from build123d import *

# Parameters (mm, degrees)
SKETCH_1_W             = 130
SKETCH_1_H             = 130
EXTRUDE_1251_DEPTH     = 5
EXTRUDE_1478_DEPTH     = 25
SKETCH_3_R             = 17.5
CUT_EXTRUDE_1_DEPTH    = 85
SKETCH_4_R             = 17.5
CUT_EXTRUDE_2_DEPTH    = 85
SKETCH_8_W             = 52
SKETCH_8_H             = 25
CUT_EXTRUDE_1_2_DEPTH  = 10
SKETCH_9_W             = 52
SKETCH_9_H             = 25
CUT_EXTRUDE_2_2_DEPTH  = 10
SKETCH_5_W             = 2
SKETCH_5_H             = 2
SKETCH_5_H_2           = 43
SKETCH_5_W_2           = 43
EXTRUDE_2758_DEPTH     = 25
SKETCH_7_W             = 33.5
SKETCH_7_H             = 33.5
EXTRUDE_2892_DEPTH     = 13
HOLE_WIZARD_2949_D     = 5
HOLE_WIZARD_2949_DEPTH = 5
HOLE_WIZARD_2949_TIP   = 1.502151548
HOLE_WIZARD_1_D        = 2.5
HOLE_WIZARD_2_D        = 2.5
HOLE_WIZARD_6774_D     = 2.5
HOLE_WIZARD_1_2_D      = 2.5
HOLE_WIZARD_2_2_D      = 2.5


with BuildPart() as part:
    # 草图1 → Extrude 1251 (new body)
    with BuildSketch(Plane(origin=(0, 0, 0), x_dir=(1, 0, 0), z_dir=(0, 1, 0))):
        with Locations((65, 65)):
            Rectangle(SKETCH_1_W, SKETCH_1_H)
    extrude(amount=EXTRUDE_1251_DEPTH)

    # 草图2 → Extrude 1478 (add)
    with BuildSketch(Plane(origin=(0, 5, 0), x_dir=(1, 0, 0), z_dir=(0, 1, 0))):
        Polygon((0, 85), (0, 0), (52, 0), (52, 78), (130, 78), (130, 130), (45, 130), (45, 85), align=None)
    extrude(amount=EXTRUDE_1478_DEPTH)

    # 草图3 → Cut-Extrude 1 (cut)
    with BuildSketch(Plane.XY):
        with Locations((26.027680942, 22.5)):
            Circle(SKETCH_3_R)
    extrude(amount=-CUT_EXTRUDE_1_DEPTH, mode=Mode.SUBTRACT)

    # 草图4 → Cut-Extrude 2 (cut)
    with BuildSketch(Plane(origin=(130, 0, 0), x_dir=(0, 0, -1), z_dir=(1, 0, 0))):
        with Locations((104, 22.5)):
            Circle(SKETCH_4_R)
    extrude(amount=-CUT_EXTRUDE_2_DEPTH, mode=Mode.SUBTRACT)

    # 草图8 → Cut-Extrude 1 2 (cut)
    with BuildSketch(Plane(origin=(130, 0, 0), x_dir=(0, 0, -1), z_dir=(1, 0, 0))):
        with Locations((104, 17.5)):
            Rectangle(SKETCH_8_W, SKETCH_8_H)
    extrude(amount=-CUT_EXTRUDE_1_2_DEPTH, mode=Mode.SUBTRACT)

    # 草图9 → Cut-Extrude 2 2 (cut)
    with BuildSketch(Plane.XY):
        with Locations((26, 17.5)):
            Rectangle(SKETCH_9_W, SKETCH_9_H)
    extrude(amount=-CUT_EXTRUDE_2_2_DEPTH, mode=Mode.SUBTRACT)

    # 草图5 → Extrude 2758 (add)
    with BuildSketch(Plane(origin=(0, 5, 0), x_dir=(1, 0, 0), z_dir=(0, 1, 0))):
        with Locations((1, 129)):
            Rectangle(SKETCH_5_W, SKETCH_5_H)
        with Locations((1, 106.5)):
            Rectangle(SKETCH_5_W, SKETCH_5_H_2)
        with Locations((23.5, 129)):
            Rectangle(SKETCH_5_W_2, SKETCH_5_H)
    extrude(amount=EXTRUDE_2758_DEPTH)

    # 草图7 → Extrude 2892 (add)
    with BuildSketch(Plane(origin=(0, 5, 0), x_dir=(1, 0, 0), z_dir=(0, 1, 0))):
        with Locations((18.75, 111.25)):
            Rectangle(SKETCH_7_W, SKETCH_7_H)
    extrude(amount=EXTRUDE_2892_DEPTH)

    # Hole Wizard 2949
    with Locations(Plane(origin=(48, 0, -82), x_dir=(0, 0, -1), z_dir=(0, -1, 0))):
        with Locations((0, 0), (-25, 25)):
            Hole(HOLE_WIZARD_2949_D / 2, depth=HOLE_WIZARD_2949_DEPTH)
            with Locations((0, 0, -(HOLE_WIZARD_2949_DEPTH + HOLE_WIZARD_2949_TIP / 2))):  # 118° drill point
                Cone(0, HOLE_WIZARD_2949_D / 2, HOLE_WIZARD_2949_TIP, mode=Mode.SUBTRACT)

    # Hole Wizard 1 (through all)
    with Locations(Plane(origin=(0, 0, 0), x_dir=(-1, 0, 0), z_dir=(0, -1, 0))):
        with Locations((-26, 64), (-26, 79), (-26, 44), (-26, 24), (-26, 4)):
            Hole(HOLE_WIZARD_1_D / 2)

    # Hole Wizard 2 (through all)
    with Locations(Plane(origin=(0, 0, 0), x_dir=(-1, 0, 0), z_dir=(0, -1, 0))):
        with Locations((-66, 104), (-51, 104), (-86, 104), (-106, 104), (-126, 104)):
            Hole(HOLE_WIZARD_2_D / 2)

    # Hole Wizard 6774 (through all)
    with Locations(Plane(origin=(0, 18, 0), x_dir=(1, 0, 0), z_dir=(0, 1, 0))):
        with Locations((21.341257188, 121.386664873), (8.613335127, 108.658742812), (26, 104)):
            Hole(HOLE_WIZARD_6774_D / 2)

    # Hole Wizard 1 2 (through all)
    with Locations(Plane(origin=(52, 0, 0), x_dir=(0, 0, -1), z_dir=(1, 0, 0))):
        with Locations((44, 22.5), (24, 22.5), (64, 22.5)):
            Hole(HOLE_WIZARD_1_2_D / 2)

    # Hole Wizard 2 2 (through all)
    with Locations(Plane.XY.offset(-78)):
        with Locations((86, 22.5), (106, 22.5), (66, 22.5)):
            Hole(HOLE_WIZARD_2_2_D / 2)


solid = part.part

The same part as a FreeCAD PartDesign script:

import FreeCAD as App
import Part
import Sketcher

V = App.Vector

doc = App.newDocument("Part")
body = doc.addObject("PartDesign::Body", "Body")

# Sketch on XZ plane
sketch1 = body.newObject("Sketcher::SketchObject", "Sketch")
sketch1.AttachmentSupport = (doc.getObject("XZ_Plane"), [""])
sketch1.MapMode = "FlatFace"
sketch1.addGeometry([
    Part.LineSegment(V(0, -130, 0), V(0, 0, 0)),
    Part.LineSegment(V(0, 0, 0), V(130, 0, 0)),
    Part.LineSegment(V(130, 0, 0), V(130, -130, 0)),
    Part.LineSegment(V(130, -130, 0), V(0, -130, 0)),
], False)
sketch1.addConstraint([
    Sketcher.Constraint("Coincident", 0, 2, 1, 1),
    Sketcher.Constraint("Coincident", 1, 2, 2, 1),
    Sketcher.Constraint("Coincident", 2, 2, 3, 1),
    Sketcher.Constraint("Coincident", 3, 2, 0, 1),
    Sketcher.Constraint("Vertical", 0),
    Sketcher.Constraint("Horizontal", 1),
    Sketcher.Constraint("Vertical", 2),
    Sketcher.Constraint("Horizontal", 3),
    Sketcher.Constraint("Coincident", 0, 2, -1, 1),
    Sketcher.Constraint("Equal", 3, 0),
    Sketcher.Constraint("DistanceX", 1, 1, 1, 2, 130.0),
])
pad1 = body.newObject("PartDesign::Pad", "Pad")
pad1.Profile = sketch1
pad1.Length = 5
pad1.Reversed = True

# Sketch on XZ plane
sketch2 = body.newObject("Sketcher::SketchObject", "Sketch001")
sketch2.AttachmentSupport = (doc.getObject("XZ_Plane"), [""])
sketch2.MapMode = "FlatFace"
sketch2.AttachmentOffset = App.Placement(V(0, 0, -5), App.Rotation())
sketch2.addGeometry([
    Part.LineSegment(V(0, -85, 0), V(0, 0, 0)),  # 0
    Part.LineSegment(V(0, 0, 0), V(52, 0, 0)),  # 1
    Part.LineSegment(V(52, 0, 0), V(52, -78, 0)),  # 2
    Part.LineSegment(V(52, -78, 0), V(130, -78, 0)),  # 3
    Part.LineSegment(V(130, -78, 0), V(130, -130, 0)),  # 4
    Part.LineSegment(V(130, -130, 0), V(45, -130, 0)),  # 5
    Part.LineSegment(V(45, -130, 0), V(45, -85, 0)),  # 6
    Part.LineSegment(V(45, -85, 0), V(0, -85, 0)),  # 7
], False)
sketch2.addConstraint([
    Sketcher.Constraint("Coincident", 0, 2, 1, 1),
    Sketcher.Constraint("Coincident", 1, 2, 2, 1),
    Sketcher.Constraint("Coincident", 2, 2, 3, 1),
    Sketcher.Constraint("Coincident", 3, 2, 4, 1),
    Sketcher.Constraint("Coincident", 4, 2, 5, 1),
    Sketcher.Constraint("Coincident", 5, 2, 6, 1),
    Sketcher.Constraint("Coincident", 6, 2, 7, 1),
    Sketcher.Constraint("Coincident", 7, 2, 0, 1),
    Sketcher.Constraint("Vertical", 0),
    Sketcher.Constraint("Horizontal", 1),
    Sketcher.Constraint("Vertical", 2),
    Sketcher.Constraint("Horizontal", 3),
    Sketcher.Constraint("Vertical", 4),
    Sketcher.Constraint("Horizontal", 5),
    Sketcher.Constraint("Vertical", 6),
    Sketcher.Constraint("Horizontal", 7),
    Sketcher.Constraint("Coincident", 0, 2, -1, 1),
    Sketcher.Constraint("Equal", 5, 0),
    Sketcher.Constraint("Equal", 3, 2),
    Sketcher.Constraint("Equal", 1, 4),
    Sketcher.Constraint("DistanceX", 1, 1, 1, 2, 52.0),
    Sketcher.Constraint("DistanceX", 3, 1, 3, 2, 78.0),
    Sketcher.Constraint("DistanceX", 5, 2, 5, 1, 85.0),
])
pad2 = body.newObject("PartDesign::Pad", "Pad001")
pad2.Profile = sketch2
pad2.Length = 25
pad2.Reversed = True

# Sketch on XY plane
sketch3 = body.newObject("Sketcher::SketchObject", "Sketch002")
sketch3.AttachmentSupport = (doc.getObject("XY_Plane"), [""])
sketch3.MapMode = "FlatFace"
sketch3.addGeometry(Part.Circle(V(26, 22, 0), V(0, 0, 1), 18), False)
sketch3.addConstraint([
    Sketcher.Constraint("Diameter", 0, 35.0),
    Sketcher.Constraint("DistanceY", -1, 1, 0, 3, 22.5),
    Sketcher.Constraint("DistanceX", -1, 1, 0, 3, 26.027681),
])
pocket1 = body.newObject("PartDesign::Pocket", "Pocket")
pocket1.Profile = sketch3
pocket1.Length = 85

# Sketch on YZ plane
sketch4 = body.newObject("Sketcher::SketchObject", "Sketch003")
sketch4.AttachmentSupport = (doc.getObject("YZ_Plane"), [""])
sketch4.MapMode = "FlatFace"
sketch4.AttachmentOffset = App.Placement(V(0, 0, 130), App.Rotation())
sketch4.addGeometry(Part.Circle(V(22, -104, 0), V(0, 0, 1), 18), False)
sketch4.addConstraint([
    Sketcher.Constraint("Diameter", 0, 35.0),
    Sketcher.Constraint("DistanceY", 0, 3, -1, 1, 104.0),
    Sketcher.Constraint("DistanceX", -1, 1, 0, 3, 22.5),
])
pocket2 = body.newObject("PartDesign::Pocket", "Pocket001")
pocket2.Profile = sketch4
pocket2.Length = 85

# Sketch on YZ plane
sketch5 = body.newObject("Sketcher::SketchObject", "Sketch004")
sketch5.AttachmentSupport = (doc.getObject("YZ_Plane"), [""])
sketch5.MapMode = "FlatFace"
sketch5.AttachmentOffset = App.Placement(V(0, 0, 130), App.Rotation())
sketch5.addGeometry([
    Part.LineSegment(V(30, -78, 0), V(5, -78, 0)),
    Part.LineSegment(V(5, -78, 0), V(5, -130, 0)),
    Part.LineSegment(V(5, -130, 0), V(30, -130, 0)),
    Part.LineSegment(V(30, -130, 0), V(30, -78, 0)),
], False)
sketch5.addConstraint([
    Sketcher.Constraint("Coincident", 0, 2, 1, 1),
    Sketcher.Constraint("Coincident", 1, 2, 2, 1),
    Sketcher.Constraint("Coincident", 2, 2, 3, 1),
    Sketcher.Constraint("Coincident", 3, 2, 0, 1),
    Sketcher.Constraint("Horizontal", 0),
    Sketcher.Constraint("Vertical", 1),
    Sketcher.Constraint("Horizontal", 2),
    Sketcher.Constraint("Vertical", 3),
    Sketcher.Constraint("DistanceX", 0, 2, 0, 1, 25.0),
    Sketcher.Constraint("DistanceY", 1, 2, 1, 1, 52.0),
    Sketcher.Constraint("DistanceX", -1, 1, 0, 2, 5.0),
    Sketcher.Constraint("DistanceY", 0, 2, -1, 1, 78.0),
])
pocket3 = body.newObject("PartDesign::Pocket", "Pocket002")
pocket3.Profile = sketch5
pocket3.Length = 10

# Sketch on XY plane
sketch6 = body.newObject("Sketcher::SketchObject", "Sketch005")
sketch6.AttachmentSupport = (doc.getObject("XY_Plane"), [""])
sketch6.MapMode = "FlatFace"
sketch6.addGeometry([
    Part.LineSegment(V(0, 30, 0), V(0, 5, 0)),
    Part.LineSegment(V(0, 5, 0), V(52, 5, 0)),
    Part.LineSegment(V(52, 5, 0), V(52, 30, 0)),
    Part.LineSegment(V(52, 30, 0), V(0, 30, 0)),
], False)
sketch6.addConstraint([
    Sketcher.Constraint("Coincident", 0, 2, 1, 1),
    Sketcher.Constraint("Coincident", 1, 2, 2, 1),
    Sketcher.Constraint("Coincident", 2, 2, 3, 1),
    Sketcher.Constraint("Coincident", 3, 2, 0, 1),
    Sketcher.Constraint("Vertical", 0),
    Sketcher.Constraint("Horizontal", 1),
    Sketcher.Constraint("Vertical", 2),
    Sketcher.Constraint("Horizontal", 3),
    Sketcher.Constraint("PointOnObject", 0, 2, -2),
    Sketcher.Constraint("DistanceX", 1, 1, 1, 2, 52.0),
    Sketcher.Constraint("DistanceY", 0, 2, 0, 1, 25.0),
    Sketcher.Constraint("DistanceY", -1, 1, 0, 2, 5.0),
])
pocket4 = body.newObject("PartDesign::Pocket", "Pocket003")
pocket4.Profile = sketch6
pocket4.Length = 10

# Sketch on XZ plane
sketch7 = body.newObject("Sketcher::SketchObject", "Sketch006")
sketch7.AttachmentSupport = (doc.getObject("XZ_Plane"), [""])
sketch7.MapMode = "FlatFace"
sketch7.AttachmentOffset = App.Placement(V(0, 0, -5), App.Rotation())
sketch7.addGeometry([
    Part.LineSegment(V(0, -130, 0), V(0, -85, 0)),  # 0
    Part.LineSegment(V(0, -85, 0), V(2, -85, 0)),  # 1
    Part.LineSegment(V(2, -85, 0), V(2, -128, 0)),  # 2
    Part.LineSegment(V(2, -128, 0), V(45, -128, 0)),  # 3
    Part.LineSegment(V(45, -128, 0), V(45, -130, 0)),  # 4
    Part.LineSegment(V(45, -130, 0), V(0, -130, 0)),  # 5
], False)
sketch7.addConstraint([
    Sketcher.Constraint("Coincident", 0, 2, 1, 1),
    Sketcher.Constraint("Coincident", 1, 2, 2, 1),
    Sketcher.Constraint("Coincident", 2, 2, 3, 1),
    Sketcher.Constraint("Coincident", 3, 2, 4, 1),
    Sketcher.Constraint("Coincident", 4, 2, 5, 1),
    Sketcher.Constraint("Coincident", 5, 2, 0, 1),
    Sketcher.Constraint("Vertical", 0),
    Sketcher.Constraint("Horizontal", 1),
    Sketcher.Constraint("Vertical", 2),
    Sketcher.Constraint("Horizontal", 3),
    Sketcher.Constraint("Vertical", 4),
    Sketcher.Constraint("Horizontal", 5),
    Sketcher.Constraint("PointOnObject", 0, 2, -2),
    Sketcher.Constraint("Equal", 5, 0),
    Sketcher.Constraint("Equal", 3, 2),
    Sketcher.Constraint("DistanceX", 1, 1, 1, 2, 2.0),
    Sketcher.Constraint("DistanceX", 3, 1, 3, 2, 43.0),
    Sketcher.Constraint("DistanceY", 0, 2, -1, 1, 85.0),
])
pad3 = body.newObject("PartDesign::Pad", "Pad002")
pad3.Profile = sketch7
pad3.Length = 25
pad3.Reversed = True

# Sketch on XZ plane
sketch8 = body.newObject("Sketcher::SketchObject", "Sketch007")
sketch8.AttachmentSupport = (doc.getObject("XZ_Plane"), [""])
sketch8.MapMode = "FlatFace"
sketch8.AttachmentOffset = App.Placement(V(0, 0, -5), App.Rotation())
sketch8.addGeometry([
    Part.LineSegment(V(2, -128, 0), V(2, -94, 0)),
    Part.LineSegment(V(2, -94, 0), V(36, -94, 0)),
    Part.LineSegment(V(36, -94, 0), V(36, -128, 0)),
    Part.LineSegment(V(36, -128, 0), V(2, -128, 0)),
], False)
sketch8.addConstraint([
    Sketcher.Constraint("Coincident", 0, 2, 1, 1),
    Sketcher.Constraint("Coincident", 1, 2, 2, 1),
    Sketcher.Constraint("Coincident", 2, 2, 3, 1),
    Sketcher.Constraint("Coincident", 3, 2, 0, 1),
    Sketcher.Constraint("Vertical", 0),
    Sketcher.Constraint("Horizontal", 1),
    Sketcher.Constraint("Vertical", 2),
    Sketcher.Constraint("Horizontal", 3),
    Sketcher.Constraint("Equal", 3, 0),
    Sketcher.Constraint("DistanceX", 1, 1, 1, 2, 33.5),
    Sketcher.Constraint("DistanceX", -1, 1, 0, 2, 2.0),
    Sketcher.Constraint("DistanceY", 2, 2, -1, 1, 128.0),
])
pad4 = body.newObject("PartDesign::Pad", "Pad003")
pad4.Profile = sketch8
pad4.Length = 13
pad4.Reversed = True

# Sketch on XZ plane
sketch9 = body.newObject("Sketcher::SketchObject", "Sketch008")
sketch9.AttachmentSupport = (doc.getObject("XZ_Plane"), [""])
sketch9.MapMode = "FlatFace"
sketch9.addGeometry([
    Part.Circle(V(48, -82, 0), V(0, 0, 1), 2.5),
    Part.Circle(V(73, -57, 0), V(0, 0, 1), 2.5),
], False)
sketch9.addConstraint([
    Sketcher.Constraint("Equal", 0, 1),
    Sketcher.Constraint("Diameter", 0, 5.0),
    Sketcher.Constraint("DistanceX", -1, 1, 0, 3, 48.0),
    Sketcher.Constraint("DistanceY", 0, 3, -1, 1, 82.0),
    Sketcher.Constraint("DistanceX", -1, 1, 1, 3, 73.0),
    Sketcher.Constraint("DistanceY", 1, 3, -1, 1, 57.0),
])
doc.recompute()
hole = body.newObject("PartDesign::Hole", "Hole")
hole.Profile = sketch9
hole.ThreadType = "None"
hole.Diameter = 5
hole.DepthType = "Dimension"
hole.Depth = 5
hole.DrillPoint = "Angled"
hole.DrillPointAngle = 118

# Sketch on XZ plane
sketch10 = body.newObject("Sketcher::SketchObject", "Sketch009")
sketch10.AttachmentSupport = (doc.getObject("XZ_Plane"), [""])
sketch10.MapMode = "FlatFace"
sketch10.addGeometry([
    Part.Circle(V(26, -64, 0), V(0, 0, 1), 1.2),  # 0
    Part.Circle(V(26, -79, 0), V(0, 0, 1), 1.2),  # 1
    Part.Circle(V(26, -44, 0), V(0, 0, 1), 1.2),  # 2
    Part.Circle(V(26, -24, 0), V(0, 0, 1), 1.2),  # 3
    Part.Circle(V(26, -4, 0), V(0, 0, 1), 1.2),  # 4
], False)
sketch10.addConstraint([
    Sketcher.Constraint("Equal", 0, 1),
    Sketcher.Constraint("Equal", 1, 2),
    Sketcher.Constraint("Equal", 2, 3),
    Sketcher.Constraint("Equal", 3, 4),
    Sketcher.Constraint("Vertical", 0, 3, 1, 3),
    Sketcher.Constraint("Vertical", 1, 3, 2, 3),
    Sketcher.Constraint("Vertical", 2, 3, 3, 3),
    Sketcher.Constraint("Vertical", 3, 3, 4, 3),
    Sketcher.Constraint("Diameter", 0, 2.5),
    Sketcher.Constraint("DistanceX", -1, 1, 0, 3, 26.0),
    Sketcher.Constraint("DistanceY", 0, 3, -1, 1, 64.0),
    Sketcher.Constraint("DistanceY", 1, 3, -1, 1, 79.0),
    Sketcher.Constraint("DistanceY", 2, 3, -1, 1, 44.0),
    Sketcher.Constraint("DistanceY", 3, 3, -1, 1, 24.0),
    Sketcher.Constraint("DistanceY", 4, 3, -1, 1, 4.0),
])
doc.recompute()
hole2 = body.newObject("PartDesign::Hole", "Hole001")
hole2.Profile = sketch10
hole2.ThreadType = "None"
hole2.Diameter = 2.5
hole2.DepthType = "ThroughAll"

# Sketch on XZ plane
sketch11 = body.newObject("Sketcher::SketchObject", "Sketch010")
sketch11.AttachmentSupport = (doc.getObject("XZ_Plane"), [""])
sketch11.MapMode = "FlatFace"
sketch11.addGeometry([
    Part.Circle(V(66, -104, 0), V(0, 0, 1), 1.2),  # 0
    Part.Circle(V(51, -104, 0), V(0, 0, 1), 1.2),  # 1
    Part.Circle(V(86, -104, 0), V(0, 0, 1), 1.2),  # 2
    Part.Circle(V(106, -104, 0), V(0, 0, 1), 1.2),  # 3
    Part.Circle(V(126, -104, 0), V(0, 0, 1), 1.2),  # 4
], False)
sketch11.addConstraint([
    Sketcher.Constraint("Equal", 0, 1),
    Sketcher.Constraint("Equal", 1, 2),
    Sketcher.Constraint("Equal", 2, 3),
    Sketcher.Constraint("Equal", 3, 4),
    Sketcher.Constraint("Horizontal", 0, 3, 1, 3),
    Sketcher.Constraint("Horizontal", 1, 3, 2, 3),
    Sketcher.Constraint("Horizontal", 2, 3, 3, 3),
    Sketcher.Constraint("Horizontal", 3, 3, 4, 3),
    Sketcher.Constraint("Diameter", 0, 2.5),
    Sketcher.Constraint("DistanceX", -1, 1, 0, 3, 66.0),
    Sketcher.Constraint("DistanceY", 0, 3, -1, 1, 104.0),
    Sketcher.Constraint("DistanceX", -1, 1, 1, 3, 51.0),
    Sketcher.Constraint("DistanceX", -1, 1, 2, 3, 86.0),
    Sketcher.Constraint("DistanceX", -1, 1, 3, 3, 106.0),
    Sketcher.Constraint("DistanceX", -1, 1, 4, 3, 126.0),
])
doc.recompute()
hole3 = body.newObject("PartDesign::Hole", "Hole002")
hole3.Profile = sketch11
hole3.ThreadType = "None"
hole3.Diameter = 2.5
hole3.DepthType = "ThroughAll"

# Sketch on XZ plane
sketch12 = body.newObject("Sketcher::SketchObject", "Sketch011")
sketch12.AttachmentSupport = (doc.getObject("XZ_Plane"), [""])
sketch12.MapMode = "FlatFace"
sketch12.AttachmentOffset = App.Placement(V(0, 0, -18), App.Rotation())
sketch12.addGeometry([
    Part.Circle(V(21.3, -121.4, 0), V(0, 0, 1), 1.2),
    Part.Circle(V(8.6, -108.7, 0), V(0, 0, 1), 1.2),
    Part.Circle(V(26, -104, 0), V(0, 0, 1), 1.2),
], False)
sketch12.addConstraint([
    Sketcher.Constraint("Equal", 0, 1),
    Sketcher.Constraint("Equal", 1, 2),
    Sketcher.Constraint("Diameter", 0, 2.5),
    Sketcher.Constraint("DistanceX", -1, 1, 2, 3, 26.0),
    Sketcher.Constraint("DistanceY", 2, 3, -1, 1, 104.0),
    Sketcher.Constraint("DistanceX", -1, 1, 0, 3, 21.341257),
    Sketcher.Constraint("DistanceY", 0, 3, -1, 1, 121.386665),
    Sketcher.Constraint("DistanceX", -1, 1, 1, 3, 8.613335),
    Sketcher.Constraint("DistanceY", 1, 3, -1, 1, 108.658743),
])
doc.recompute()
hole4 = body.newObject("PartDesign::Hole", "Hole003")
hole4.Profile = sketch12
hole4.ThreadType = "None"
hole4.Diameter = 2.5
hole4.DepthType = "ThroughAll"
hole4.Reversed = True

# Sketch on YZ plane
sketch13 = body.newObject("Sketcher::SketchObject", "Sketch012")
sketch13.AttachmentSupport = (doc.getObject("YZ_Plane"), [""])
sketch13.MapMode = "FlatFace"
sketch13.AttachmentOffset = App.Placement(V(0, 0, 52), App.Rotation())
sketch13.addGeometry([
    Part.Circle(V(22.5, -44, 0), V(0, 0, 1), 1.2),
    Part.Circle(V(22.5, -24, 0), V(0, 0, 1), 1.2),
    Part.Circle(V(22.5, -64, 0), V(0, 0, 1), 1.2),
], False)
sketch13.addConstraint([
    Sketcher.Constraint("Equal", 0, 1),
    Sketcher.Constraint("Equal", 1, 2),
    Sketcher.Constraint("Vertical", 0, 3, 1, 3),
    Sketcher.Constraint("Vertical", 1, 3, 2, 3),
    Sketcher.Constraint("Diameter", 0, 2.5),
    Sketcher.Constraint("DistanceY", 0, 3, -1, 1, 44.0),
    Sketcher.Constraint("DistanceY", 1, 3, -1, 1, 24.0),
    Sketcher.Constraint("DistanceY", 2, 3, -1, 1, 64.0),
    Sketcher.Constraint("DistanceX", -1, 1, 0, 3, 22.5),
])
doc.recompute()
hole5 = body.newObject("PartDesign::Hole", "Hole004")
hole5.Profile = sketch13
hole5.ThreadType = "None"
hole5.Diameter = 2.5
hole5.DepthType = "ThroughAll"

# Sketch on XY plane
sketch14 = body.newObject("Sketcher::SketchObject", "Sketch013")
sketch14.AttachmentSupport = (doc.getObject("XY_Plane"), [""])
sketch14.MapMode = "FlatFace"
sketch14.AttachmentOffset = App.Placement(V(0, 0, -78), App.Rotation())
sketch14.addGeometry([
    Part.Circle(V(86, 22.5, 0), V(0, 0, 1), 1.2),
    Part.Circle(V(106, 22.5, 0), V(0, 0, 1), 1.2),
    Part.Circle(V(66, 22.5, 0), V(0, 0, 1), 1.2),
], False)
sketch14.addConstraint([
    Sketcher.Constraint("Equal", 0, 1),
    Sketcher.Constraint("Equal", 1, 2),
    Sketcher.Constraint("Horizontal", 0, 3, 1, 3),
    Sketcher.Constraint("Horizontal", 1, 3, 2, 3),
    Sketcher.Constraint("Diameter", 0, 2.5),
    Sketcher.Constraint("DistanceX", -1, 1, 0, 3, 86.0),
    Sketcher.Constraint("DistanceX", -1, 1, 1, 3, 106.0),
    Sketcher.Constraint("DistanceX", -1, 1, 2, 3, 66.0),
    Sketcher.Constraint("DistanceY", -1, 1, 0, 3, 22.5),
])
doc.recompute()
hole6 = body.newObject("PartDesign::Hole", "Hole005")
hole6.Profile = sketch14
hole6.ThreadType = "None"
hole6.Diameter = 2.5
hole6.DepthType = "ThroughAll"

doc.recompute()
